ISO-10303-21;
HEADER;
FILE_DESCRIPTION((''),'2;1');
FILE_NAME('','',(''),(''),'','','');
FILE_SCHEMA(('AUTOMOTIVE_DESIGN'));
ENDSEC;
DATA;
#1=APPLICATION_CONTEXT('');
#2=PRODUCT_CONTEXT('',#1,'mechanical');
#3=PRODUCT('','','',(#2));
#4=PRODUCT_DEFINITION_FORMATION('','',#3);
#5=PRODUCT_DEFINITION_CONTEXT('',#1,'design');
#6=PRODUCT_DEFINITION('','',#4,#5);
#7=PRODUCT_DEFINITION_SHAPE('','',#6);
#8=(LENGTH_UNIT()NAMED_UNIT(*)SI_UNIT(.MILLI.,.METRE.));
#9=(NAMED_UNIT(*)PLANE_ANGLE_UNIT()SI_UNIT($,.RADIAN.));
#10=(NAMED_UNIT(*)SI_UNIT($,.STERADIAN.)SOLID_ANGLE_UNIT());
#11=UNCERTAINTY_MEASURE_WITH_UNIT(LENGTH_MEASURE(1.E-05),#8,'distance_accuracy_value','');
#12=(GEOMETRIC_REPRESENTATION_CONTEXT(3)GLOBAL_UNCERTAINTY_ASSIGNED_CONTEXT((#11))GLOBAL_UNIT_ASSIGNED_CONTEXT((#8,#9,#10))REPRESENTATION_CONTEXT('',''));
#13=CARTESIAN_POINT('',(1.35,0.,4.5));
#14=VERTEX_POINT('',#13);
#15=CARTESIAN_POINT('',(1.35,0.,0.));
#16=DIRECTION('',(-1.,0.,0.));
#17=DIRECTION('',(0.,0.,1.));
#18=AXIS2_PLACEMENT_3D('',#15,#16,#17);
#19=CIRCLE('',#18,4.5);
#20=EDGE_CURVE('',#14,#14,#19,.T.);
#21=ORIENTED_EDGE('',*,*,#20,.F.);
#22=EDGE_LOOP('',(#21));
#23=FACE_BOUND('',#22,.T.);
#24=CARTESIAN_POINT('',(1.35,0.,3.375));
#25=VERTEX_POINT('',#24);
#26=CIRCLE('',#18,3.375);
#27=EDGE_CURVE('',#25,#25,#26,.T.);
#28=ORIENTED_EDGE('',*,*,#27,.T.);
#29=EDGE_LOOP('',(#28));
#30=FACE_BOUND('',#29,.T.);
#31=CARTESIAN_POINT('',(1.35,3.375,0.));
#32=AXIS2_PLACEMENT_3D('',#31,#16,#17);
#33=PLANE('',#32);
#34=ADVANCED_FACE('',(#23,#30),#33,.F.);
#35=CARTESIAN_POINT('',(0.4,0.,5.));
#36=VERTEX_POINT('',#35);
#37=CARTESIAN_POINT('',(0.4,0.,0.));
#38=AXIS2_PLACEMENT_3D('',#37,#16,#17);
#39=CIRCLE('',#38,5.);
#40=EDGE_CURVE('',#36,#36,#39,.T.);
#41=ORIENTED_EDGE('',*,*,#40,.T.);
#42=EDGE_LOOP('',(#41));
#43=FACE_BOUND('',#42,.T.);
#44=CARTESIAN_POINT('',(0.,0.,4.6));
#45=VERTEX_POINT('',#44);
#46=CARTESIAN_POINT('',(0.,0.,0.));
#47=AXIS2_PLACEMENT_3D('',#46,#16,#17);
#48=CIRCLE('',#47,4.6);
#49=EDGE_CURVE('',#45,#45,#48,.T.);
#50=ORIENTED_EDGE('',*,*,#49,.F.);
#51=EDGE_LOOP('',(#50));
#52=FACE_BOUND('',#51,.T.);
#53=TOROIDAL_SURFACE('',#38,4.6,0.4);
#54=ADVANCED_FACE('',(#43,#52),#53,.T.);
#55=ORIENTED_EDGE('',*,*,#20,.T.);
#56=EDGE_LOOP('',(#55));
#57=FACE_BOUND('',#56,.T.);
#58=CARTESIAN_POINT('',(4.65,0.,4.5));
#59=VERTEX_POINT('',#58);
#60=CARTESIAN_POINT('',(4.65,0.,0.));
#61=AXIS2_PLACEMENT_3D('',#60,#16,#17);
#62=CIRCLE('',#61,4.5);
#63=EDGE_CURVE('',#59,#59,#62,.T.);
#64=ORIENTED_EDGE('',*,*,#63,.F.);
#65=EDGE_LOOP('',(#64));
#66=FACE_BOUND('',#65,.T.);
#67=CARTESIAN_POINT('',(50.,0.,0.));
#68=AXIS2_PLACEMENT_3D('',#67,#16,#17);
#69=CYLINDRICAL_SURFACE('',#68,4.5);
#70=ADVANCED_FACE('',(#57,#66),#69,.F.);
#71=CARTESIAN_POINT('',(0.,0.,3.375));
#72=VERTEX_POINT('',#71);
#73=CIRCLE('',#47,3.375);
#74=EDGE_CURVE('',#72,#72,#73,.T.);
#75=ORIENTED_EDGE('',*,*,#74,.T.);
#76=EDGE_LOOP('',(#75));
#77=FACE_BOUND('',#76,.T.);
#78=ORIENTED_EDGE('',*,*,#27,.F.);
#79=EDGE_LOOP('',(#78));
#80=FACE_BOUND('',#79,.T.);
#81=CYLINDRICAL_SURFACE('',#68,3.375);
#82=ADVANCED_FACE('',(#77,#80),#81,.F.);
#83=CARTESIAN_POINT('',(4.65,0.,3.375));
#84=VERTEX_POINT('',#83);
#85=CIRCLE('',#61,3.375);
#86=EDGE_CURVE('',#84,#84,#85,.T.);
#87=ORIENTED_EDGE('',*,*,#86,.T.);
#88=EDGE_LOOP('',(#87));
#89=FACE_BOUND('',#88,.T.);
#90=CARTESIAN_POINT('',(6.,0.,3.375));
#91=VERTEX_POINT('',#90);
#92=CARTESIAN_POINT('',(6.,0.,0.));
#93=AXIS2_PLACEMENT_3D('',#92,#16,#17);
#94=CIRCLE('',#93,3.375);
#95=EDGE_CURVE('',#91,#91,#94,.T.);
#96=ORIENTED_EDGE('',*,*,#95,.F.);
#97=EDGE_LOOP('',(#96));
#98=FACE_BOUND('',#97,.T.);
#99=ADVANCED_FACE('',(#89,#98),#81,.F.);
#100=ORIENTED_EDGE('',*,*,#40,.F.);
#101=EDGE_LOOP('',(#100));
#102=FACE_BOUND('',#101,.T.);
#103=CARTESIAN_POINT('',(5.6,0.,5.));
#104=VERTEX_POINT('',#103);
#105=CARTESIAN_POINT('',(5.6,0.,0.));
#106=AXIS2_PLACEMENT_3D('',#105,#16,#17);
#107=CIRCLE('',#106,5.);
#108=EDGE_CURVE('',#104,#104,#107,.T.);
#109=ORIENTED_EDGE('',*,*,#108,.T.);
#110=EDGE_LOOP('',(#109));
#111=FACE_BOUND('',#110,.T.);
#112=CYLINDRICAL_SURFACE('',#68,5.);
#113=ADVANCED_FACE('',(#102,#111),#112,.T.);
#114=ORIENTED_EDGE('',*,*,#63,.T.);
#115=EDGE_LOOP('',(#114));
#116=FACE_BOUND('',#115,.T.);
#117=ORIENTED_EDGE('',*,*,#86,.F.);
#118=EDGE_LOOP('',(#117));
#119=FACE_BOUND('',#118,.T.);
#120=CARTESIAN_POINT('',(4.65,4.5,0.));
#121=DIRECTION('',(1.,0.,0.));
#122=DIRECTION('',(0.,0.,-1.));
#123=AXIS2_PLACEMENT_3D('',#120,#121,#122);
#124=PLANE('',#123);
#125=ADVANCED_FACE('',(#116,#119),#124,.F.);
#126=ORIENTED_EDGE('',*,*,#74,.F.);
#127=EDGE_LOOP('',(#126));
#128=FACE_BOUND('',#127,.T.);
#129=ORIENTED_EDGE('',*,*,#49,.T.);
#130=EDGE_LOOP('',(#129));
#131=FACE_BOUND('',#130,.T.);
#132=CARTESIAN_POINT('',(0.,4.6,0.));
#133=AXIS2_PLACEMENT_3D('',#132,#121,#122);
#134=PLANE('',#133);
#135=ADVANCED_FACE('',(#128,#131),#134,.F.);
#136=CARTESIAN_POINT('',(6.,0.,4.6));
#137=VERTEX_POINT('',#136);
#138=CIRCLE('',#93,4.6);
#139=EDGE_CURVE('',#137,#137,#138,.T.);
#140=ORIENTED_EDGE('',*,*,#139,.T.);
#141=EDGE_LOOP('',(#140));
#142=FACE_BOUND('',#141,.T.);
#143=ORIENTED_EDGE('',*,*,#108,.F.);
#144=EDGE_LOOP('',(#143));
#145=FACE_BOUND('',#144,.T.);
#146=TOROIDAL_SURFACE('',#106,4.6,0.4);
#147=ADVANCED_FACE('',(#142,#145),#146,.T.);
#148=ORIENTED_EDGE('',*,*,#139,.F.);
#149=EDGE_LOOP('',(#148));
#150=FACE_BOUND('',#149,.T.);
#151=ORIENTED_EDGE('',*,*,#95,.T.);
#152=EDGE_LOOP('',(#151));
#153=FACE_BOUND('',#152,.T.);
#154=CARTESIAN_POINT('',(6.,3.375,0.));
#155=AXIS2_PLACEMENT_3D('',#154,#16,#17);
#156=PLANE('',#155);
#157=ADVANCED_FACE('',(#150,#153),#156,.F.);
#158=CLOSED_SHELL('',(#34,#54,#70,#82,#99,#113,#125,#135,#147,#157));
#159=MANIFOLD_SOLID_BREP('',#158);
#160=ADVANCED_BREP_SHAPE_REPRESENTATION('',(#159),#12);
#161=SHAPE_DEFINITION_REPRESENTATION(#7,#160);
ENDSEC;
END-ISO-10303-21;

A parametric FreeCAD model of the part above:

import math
import FreeCAD as App
import Part
import Sketcher
Q = App.Units.Quantity

doc = App.newDocument("Part")
body = doc.addObject("PartDesign::Body", "Body")

sketch1 = doc.addObject("Sketcher::SketchObject", "Sketch")
body.addObject(sketch1)
sketch1.AttachmentSupport = (doc.XY_Plane, [""])
sketch1.MapMode = "FlatFace"
sketch1.addGeometry([
    Part.LineSegment(App.Vector(0, 4.6, 0), App.Vector(0, 3.375, 0)),
    Part.LineSegment(App.Vector(0, 3.375, 0), App.Vector(1.35, 3.375, 0)),
    Part.LineSegment(App.Vector(1.35, 3.375, 0), App.Vector(1.35, 4.5, 0)),
    Part.LineSegment(App.Vector(1.35, 4.5, 0), App.Vector(4.65, 4.5, 0)),
    Part.LineSegment(App.Vector(4.65, 4.5, 0), App.Vector(4.65, 3.375, 0)),
    Part.LineSegment(App.Vector(4.65, 3.375, 0), App.Vector(6, 3.375, 0)),
    Part.LineSegment(App.Vector(6, 3.375, 0), App.Vector(6, 4.6, 0)),
    Part.ArcOfCircle(Part.Circle(App.Vector(5.6, 4.6, 0), App.Vector(0, 0, 1), 0.4), math.radians(0), math.radians(90)),
    Part.LineSegment(App.Vector(5.6, 5, 0), App.Vector(0.4, 5, 0)),
    Part.ArcOfCircle(Part.Circle(App.Vector(0.4, 4.6, 0), App.Vector(0, 0, 1), 0.4), math.radians(90), math.radians(180)),
], False)
sketch1.addConstraint([
    Sketcher.Constraint("Coincident", 0, 2, 1, 1),
    Sketcher.Constraint("Coincident", 1, 2, 2, 1),
    Sketcher.Constraint("Coincident", 2, 2, 3, 1),
    Sketcher.Constraint("Coincident", 3, 2, 4, 1),
    Sketcher.Constraint("Coincident", 4, 2, 5, 1),
    Sketcher.Constraint("Coincident", 5, 2, 6, 1),
    Sketcher.Constraint("Tangent", 6, 2, 7, 1),
    Sketcher.Constraint("Tangent", 7, 2, 8, 1),
    Sketcher.Constraint("Tangent", 8, 2, 9, 1),
    Sketcher.Constraint("Tangent", 9, 2, 0, 1),
    Sketcher.Constraint("Vertical", 0),
    Sketcher.Constraint("Horizontal", 1),
    Sketcher.Constraint("Vertical", 2),
    Sketcher.Constraint("Horizontal", 3),
    Sketcher.Constraint("Vertical", 4),
    Sketcher.Constraint("Horizontal", 5),
    Sketcher.Constraint("Vertical", 6),
    Sketcher.Constraint("Horizontal", 8),
    Sketcher.Constraint("Equal", 7, 9),
    Sketcher.Constraint("PointOnObject", 0, 2, -2),
    Sketcher.Constraint("Horizontal", 1, 2, 4, 2),
    Sketcher.Constraint("Equal", 1, 5),
    Sketcher.Constraint("Radius", 7, Q("0.4 mm")),
    Sketcher.Constraint("DistanceX", 3, 1, 3, 2, Q("3.3 mm")),
    Sketcher.Constraint("DistanceX", 8, 2, 8, 1, Q("5.2 mm")),
    Sketcher.Constraint("DistanceY", -1, 1, 7, 2, Q("5 mm")),
    Sketcher.Constraint("DistanceY", -1, 1, 2, 2, Q("4.5 mm")),
    Sketcher.Constraint("DistanceY", 0, 2, 0, 1, Q("1.225 mm")),
])
revolution = doc.addObject("PartDesign::Revolution", "Revolution")
body.addObject(revolution)
revolution.Profile = sketch1
revolution.ReferenceAxis = (sketch1, ["H_Axis"])
revolution.Angle = 360

doc.recompute()
